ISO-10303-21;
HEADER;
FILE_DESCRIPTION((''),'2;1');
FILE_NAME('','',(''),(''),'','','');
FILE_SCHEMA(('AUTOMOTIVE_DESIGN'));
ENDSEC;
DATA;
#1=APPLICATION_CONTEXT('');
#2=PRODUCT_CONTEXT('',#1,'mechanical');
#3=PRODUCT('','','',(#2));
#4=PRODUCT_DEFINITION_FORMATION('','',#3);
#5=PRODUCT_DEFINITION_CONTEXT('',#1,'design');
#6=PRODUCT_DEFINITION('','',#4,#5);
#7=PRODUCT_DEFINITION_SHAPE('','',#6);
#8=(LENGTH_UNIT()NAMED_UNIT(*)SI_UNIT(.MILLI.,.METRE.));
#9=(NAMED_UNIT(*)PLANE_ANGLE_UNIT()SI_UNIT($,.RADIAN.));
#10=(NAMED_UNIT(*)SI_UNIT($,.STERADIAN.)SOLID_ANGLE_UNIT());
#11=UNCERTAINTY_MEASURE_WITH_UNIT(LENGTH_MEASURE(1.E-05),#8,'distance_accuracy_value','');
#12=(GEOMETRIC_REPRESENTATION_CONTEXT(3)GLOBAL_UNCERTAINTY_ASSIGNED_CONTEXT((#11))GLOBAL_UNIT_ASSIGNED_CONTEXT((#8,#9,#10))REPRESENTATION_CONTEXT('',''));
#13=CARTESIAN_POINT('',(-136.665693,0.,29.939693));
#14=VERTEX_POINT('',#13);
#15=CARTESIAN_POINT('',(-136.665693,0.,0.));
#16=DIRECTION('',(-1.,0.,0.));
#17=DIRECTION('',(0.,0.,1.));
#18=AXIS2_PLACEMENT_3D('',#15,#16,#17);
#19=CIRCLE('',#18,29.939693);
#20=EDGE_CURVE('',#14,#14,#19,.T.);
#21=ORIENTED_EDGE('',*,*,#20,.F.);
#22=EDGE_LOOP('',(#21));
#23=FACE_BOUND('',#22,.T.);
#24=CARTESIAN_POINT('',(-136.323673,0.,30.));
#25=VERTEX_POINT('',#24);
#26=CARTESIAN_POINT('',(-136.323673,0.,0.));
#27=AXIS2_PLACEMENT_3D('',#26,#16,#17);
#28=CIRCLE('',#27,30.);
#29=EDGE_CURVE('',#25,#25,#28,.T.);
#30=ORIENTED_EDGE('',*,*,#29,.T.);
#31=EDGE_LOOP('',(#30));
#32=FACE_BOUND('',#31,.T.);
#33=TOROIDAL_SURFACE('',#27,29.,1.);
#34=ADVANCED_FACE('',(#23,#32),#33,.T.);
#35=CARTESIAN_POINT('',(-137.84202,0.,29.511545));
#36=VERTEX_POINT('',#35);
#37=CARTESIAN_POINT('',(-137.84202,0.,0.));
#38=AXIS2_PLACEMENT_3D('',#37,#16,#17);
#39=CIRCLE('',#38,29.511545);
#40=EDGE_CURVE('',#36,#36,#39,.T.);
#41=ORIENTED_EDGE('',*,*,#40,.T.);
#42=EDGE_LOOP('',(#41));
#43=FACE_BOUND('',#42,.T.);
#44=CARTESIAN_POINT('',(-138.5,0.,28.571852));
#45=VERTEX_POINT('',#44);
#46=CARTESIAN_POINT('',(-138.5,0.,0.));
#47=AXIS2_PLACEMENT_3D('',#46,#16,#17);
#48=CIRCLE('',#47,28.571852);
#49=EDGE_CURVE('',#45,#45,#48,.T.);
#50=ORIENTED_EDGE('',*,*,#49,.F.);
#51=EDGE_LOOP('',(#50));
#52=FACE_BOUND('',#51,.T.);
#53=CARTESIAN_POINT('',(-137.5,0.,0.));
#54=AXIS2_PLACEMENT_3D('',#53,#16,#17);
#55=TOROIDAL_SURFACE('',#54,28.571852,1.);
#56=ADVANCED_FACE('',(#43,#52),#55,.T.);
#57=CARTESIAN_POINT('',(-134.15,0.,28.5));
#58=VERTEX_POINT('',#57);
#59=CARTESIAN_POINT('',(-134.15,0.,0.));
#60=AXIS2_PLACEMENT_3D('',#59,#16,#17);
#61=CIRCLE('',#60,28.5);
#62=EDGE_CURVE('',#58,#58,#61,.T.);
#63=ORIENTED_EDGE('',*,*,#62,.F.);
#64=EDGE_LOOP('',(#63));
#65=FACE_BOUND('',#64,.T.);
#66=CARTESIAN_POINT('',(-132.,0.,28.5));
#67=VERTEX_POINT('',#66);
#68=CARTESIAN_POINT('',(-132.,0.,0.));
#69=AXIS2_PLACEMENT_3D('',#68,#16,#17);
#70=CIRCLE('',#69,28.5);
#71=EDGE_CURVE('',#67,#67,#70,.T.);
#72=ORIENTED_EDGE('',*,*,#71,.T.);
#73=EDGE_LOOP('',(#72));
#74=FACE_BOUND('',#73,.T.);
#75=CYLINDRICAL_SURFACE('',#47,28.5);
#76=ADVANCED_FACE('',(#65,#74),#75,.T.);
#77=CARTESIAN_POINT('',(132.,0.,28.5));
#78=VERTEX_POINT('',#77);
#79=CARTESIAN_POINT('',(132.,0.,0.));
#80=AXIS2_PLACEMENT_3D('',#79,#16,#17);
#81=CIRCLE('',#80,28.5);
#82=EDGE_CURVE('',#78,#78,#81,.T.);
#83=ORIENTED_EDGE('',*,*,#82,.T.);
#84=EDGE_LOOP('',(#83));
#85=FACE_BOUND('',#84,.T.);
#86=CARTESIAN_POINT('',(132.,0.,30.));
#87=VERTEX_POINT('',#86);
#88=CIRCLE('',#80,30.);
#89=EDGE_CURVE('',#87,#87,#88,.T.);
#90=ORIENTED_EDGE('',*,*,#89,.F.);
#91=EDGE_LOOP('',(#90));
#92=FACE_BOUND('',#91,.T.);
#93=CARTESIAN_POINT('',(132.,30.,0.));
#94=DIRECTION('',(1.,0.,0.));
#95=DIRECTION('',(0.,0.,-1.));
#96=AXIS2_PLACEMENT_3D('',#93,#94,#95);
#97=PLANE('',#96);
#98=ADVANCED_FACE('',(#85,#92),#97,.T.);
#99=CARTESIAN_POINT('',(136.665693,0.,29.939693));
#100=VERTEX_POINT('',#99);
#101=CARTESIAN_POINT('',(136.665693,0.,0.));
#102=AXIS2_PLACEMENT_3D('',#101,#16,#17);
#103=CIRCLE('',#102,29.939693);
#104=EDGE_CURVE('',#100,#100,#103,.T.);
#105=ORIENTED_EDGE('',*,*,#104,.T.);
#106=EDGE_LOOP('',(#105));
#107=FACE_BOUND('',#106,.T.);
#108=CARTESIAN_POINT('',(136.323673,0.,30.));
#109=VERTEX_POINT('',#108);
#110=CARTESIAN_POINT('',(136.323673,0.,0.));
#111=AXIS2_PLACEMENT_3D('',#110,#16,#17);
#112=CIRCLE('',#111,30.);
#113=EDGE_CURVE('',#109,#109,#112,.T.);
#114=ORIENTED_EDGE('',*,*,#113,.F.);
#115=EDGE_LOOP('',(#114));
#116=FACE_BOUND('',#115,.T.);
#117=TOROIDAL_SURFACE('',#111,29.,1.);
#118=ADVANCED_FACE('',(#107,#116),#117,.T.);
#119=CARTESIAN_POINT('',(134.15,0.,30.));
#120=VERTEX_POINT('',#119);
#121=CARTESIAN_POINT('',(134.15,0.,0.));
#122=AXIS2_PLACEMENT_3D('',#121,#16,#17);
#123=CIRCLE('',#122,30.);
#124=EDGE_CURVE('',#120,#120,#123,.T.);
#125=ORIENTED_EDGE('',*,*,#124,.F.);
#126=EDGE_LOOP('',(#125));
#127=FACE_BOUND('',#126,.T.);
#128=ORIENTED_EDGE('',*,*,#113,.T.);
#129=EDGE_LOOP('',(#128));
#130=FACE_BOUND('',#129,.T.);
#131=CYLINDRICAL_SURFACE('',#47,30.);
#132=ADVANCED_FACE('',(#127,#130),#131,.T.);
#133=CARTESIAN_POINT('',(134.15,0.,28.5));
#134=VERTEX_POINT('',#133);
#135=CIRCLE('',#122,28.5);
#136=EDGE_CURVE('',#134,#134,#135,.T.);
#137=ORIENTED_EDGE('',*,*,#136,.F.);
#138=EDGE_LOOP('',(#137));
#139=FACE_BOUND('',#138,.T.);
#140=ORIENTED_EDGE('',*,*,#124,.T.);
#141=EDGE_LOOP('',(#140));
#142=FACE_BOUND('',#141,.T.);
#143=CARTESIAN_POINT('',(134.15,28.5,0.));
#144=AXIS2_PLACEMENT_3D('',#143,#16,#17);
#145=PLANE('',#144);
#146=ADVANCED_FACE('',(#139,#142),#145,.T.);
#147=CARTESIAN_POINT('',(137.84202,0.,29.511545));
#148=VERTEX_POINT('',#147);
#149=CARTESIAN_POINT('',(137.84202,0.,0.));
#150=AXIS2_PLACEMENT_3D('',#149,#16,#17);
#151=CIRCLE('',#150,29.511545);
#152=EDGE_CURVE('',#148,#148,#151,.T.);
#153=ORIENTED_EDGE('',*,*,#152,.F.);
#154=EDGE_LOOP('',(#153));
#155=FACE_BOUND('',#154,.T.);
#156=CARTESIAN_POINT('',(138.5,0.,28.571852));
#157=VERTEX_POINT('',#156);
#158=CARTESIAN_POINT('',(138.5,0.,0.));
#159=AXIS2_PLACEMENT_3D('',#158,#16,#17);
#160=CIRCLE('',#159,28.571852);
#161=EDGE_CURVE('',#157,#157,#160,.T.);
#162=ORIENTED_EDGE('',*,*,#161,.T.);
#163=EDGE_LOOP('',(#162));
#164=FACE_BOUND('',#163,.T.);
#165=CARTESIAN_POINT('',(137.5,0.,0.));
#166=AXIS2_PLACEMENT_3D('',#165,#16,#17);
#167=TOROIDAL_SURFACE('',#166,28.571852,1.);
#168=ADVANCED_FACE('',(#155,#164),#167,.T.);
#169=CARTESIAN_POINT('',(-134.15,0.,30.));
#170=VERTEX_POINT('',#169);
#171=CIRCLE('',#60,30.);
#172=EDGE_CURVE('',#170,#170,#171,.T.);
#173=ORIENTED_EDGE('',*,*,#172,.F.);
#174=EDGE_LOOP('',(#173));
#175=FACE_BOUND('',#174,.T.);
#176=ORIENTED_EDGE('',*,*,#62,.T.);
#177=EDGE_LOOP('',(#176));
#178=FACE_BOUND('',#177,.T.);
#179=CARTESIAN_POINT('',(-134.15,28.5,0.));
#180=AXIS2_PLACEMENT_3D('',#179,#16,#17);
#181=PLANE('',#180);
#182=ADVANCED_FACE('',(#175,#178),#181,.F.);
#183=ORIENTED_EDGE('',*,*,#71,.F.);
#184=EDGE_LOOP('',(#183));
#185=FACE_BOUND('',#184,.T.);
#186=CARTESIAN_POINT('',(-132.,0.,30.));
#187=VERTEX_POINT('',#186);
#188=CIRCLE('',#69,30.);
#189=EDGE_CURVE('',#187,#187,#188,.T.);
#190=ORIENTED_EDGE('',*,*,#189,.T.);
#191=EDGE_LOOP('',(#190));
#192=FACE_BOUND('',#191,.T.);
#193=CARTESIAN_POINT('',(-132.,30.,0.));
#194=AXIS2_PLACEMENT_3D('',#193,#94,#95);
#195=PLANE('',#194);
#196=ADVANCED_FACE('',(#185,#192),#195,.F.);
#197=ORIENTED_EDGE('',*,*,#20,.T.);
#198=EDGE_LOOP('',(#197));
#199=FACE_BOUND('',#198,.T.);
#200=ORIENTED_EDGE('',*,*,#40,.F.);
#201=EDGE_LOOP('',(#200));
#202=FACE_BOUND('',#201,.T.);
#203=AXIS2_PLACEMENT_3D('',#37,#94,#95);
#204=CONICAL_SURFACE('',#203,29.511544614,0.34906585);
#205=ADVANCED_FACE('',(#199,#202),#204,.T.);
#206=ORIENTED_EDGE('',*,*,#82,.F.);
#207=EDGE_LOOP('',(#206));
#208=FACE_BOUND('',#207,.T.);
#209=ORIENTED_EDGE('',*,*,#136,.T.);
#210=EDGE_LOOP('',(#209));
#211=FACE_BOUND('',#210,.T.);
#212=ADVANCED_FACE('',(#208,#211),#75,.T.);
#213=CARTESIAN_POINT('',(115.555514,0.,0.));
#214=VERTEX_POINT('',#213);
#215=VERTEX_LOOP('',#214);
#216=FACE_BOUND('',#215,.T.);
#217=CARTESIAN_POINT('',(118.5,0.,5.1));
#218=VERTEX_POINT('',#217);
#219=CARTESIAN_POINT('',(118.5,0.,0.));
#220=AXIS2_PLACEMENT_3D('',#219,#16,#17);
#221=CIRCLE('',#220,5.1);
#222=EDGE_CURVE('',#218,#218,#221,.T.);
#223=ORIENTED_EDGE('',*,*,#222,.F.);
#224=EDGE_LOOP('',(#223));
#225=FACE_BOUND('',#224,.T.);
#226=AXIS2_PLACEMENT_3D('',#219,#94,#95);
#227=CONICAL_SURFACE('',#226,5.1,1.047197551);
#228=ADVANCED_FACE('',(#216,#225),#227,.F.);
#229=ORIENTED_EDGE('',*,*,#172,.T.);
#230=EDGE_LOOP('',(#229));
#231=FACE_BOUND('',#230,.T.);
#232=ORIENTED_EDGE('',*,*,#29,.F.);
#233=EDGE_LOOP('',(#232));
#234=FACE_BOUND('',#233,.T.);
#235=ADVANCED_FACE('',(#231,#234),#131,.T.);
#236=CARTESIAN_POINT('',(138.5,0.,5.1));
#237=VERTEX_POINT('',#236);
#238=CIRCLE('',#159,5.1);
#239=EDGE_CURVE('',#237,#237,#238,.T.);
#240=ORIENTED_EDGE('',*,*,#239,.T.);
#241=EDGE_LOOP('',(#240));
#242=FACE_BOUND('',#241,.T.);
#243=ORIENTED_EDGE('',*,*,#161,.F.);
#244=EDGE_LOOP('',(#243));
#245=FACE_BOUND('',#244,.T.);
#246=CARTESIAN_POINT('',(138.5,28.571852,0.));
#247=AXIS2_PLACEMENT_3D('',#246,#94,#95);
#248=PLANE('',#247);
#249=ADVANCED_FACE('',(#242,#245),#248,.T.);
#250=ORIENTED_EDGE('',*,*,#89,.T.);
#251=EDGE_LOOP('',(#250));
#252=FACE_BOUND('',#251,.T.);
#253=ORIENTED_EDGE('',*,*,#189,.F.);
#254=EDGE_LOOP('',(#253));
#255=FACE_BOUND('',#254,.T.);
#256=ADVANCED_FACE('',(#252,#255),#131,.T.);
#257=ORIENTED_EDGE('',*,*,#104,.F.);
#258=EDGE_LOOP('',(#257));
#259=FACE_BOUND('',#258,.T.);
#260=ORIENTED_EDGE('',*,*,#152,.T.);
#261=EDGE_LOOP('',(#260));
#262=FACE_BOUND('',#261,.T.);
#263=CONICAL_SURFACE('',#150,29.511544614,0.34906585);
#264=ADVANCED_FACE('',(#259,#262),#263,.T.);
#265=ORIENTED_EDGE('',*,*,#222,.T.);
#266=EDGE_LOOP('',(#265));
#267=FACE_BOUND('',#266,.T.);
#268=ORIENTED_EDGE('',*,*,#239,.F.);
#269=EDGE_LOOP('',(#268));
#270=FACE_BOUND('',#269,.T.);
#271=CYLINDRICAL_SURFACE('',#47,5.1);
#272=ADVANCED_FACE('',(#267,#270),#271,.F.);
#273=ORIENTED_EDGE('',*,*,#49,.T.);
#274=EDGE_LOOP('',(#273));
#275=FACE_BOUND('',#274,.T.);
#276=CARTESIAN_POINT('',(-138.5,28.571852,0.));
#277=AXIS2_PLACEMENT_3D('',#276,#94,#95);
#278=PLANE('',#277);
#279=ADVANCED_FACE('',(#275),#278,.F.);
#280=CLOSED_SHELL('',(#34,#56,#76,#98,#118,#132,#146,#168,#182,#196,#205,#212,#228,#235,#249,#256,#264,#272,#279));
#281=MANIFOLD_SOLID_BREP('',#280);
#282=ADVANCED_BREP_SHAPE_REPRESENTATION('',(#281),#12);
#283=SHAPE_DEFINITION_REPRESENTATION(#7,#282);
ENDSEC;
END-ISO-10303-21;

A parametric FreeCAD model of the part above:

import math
import FreeCAD as App
import Part
import Sketcher
from FreeCAD import Vector
Q = App.Units.Quantity

doc = App.newDocument("Part")
body = doc.addObject("PartDesign::Body", "Body")

# Sketch on XY plane
sketch1 = doc.addObject("Sketcher::SketchObject", "Sketch")
body.addObject(sketch1)
sketch1.AttachmentSupport = (doc.XY_Plane, [""])
sketch1.MapMode = "FlatFace"
sketch1.addGeometry([
    Part.LineSegment(Vector(132, 30, 0), Vector(-132, 30, 0)),  # 0
    Part.LineSegment(Vector(-132, 30, 0), Vector(-132, 28.5, 0)),  # 1
    Part.LineSegment(Vector(-132, 28.5, 0), Vector(-134.15, 28.5, 0)),  # 2
    Part.LineSegment(Vector(-134.15, 28.5, 0), Vector(-134.15, 30, 0)),  # 3
    Part.LineSegment(Vector(-134.15, 30, 0), Vector(-136.32, 30, 0)),  # 4
    Part.ArcOfCircle(Part.Circle(Vector(-136.32, 29, 0), Vector(0, 0, 1), 1), math.radians(90), math.radians(110)),  # 5
    Part.LineSegment(Vector(-136.67, 29.94, 0), Vector(-137.84, 29.51, 0)),  # 6
    Part.ArcOfCircle(Part.Circle(Vector(-137.5, 28.57, 0), Vector(0, 0, 1), 1), math.radians(110), math.radians(180)),  # 7
    Part.LineSegment(Vector(-138.5, 28.57, 0), Vector(-138.5, 0, 0)),  # 8
    Part.LineSegment(Vector(-138.5, 0, 0), Vector(115.56, 0, 0)),  # 9
    Part.LineSegment(Vector(115.56, 0, 0), Vector(118.5, 5.1, 0)),  # 10
    Part.LineSegment(Vector(118.5, 5.1, 0), Vector(138.5, 5.1, 0)),  # 11
    Part.LineSegment(Vector(138.5, 5.1, 0), Vector(138.5, 28.57, 0)),  # 12
    Part.ArcOfCircle(Part.Circle(Vector(137.5, 28.57, 0), Vector(0, 0, 1), 1), math.radians(0), math.radians(70)),  # 13
    Part.LineSegment(Vector(137.84, 29.51, 0), Vector(136.67, 29.94, 0)),  # 14
    Part.ArcOfCircle(Part.Circle(Vector(136.32, 29, 0), Vector(0, 0, 1), 1), math.radians(70), math.radians(90)),  # 15
    Part.LineSegment(Vector(136.32, 30, 0), Vector(134.15, 30, 0)),  # 16
    Part.LineSegment(Vector(134.15, 30, 0), Vector(134.15, 28.5, 0)),  # 17
    Part.LineSegment(Vector(134.15, 28.5, 0), Vector(132, 28.5, 0)),  # 18
    Part.LineSegment(Vector(132, 28.5, 0), Vector(132, 30, 0)),  # 19
], False)
sketch1.addConstraint([
    Sketcher.Constraint("Coincident", 0, 2, 1, 1),
    Sketcher.Constraint("Coincident", 1, 2, 2, 1),
    Sketcher.Constraint("Coincident", 2, 2, 3, 1),
    Sketcher.Constraint("Coincident", 3, 2, 4, 1),
    Sketcher.Constraint("Tangent", 4, 2, 5, 1),
    Sketcher.Constraint("Tangent", 5, 2, 6, 1),
    Sketcher.Constraint("Tangent", 6, 2, 7, 1),
    Sketcher.Constraint("Tangent", 7, 2, 8, 1),
    Sketcher.Constraint("Coincident", 8, 2, 9, 1),
    Sketcher.Constraint("Coincident", 9, 2, 10, 1),
    Sketcher.Constraint("Coincident", 10, 2, 11, 1),
    Sketcher.Constraint("Coincident", 11, 2, 12, 1),
    Sketcher.Constraint("Tangent", 12, 2, 13, 1),
    Sketcher.Constraint("Tangent", 13, 2, 14, 1),
    Sketcher.Constraint("Tangent", 14, 2, 15, 1),
    Sketcher.Constraint("Tangent", 15, 2, 16, 1),
    Sketcher.Constraint("Coincident", 16, 2, 17, 1),
    Sketcher.Constraint("Coincident", 17, 2, 18, 1),
    Sketcher.Constraint("Coincident", 18, 2, 19, 1),
    Sketcher.Constraint("Coincident", 19, 2, 0, 1),
    Sketcher.Constraint("Horizontal", 0),
    Sketcher.Constraint("Vertical", 1),
    Sketcher.Constraint("Horizontal", 2),
    Sketcher.Constraint("Vertical", 3),
    Sketcher.Constraint("Horizontal", 4),
    Sketcher.Constraint("Vertical", 8),
    Sketcher.Constraint("Horizontal", 9),
    Sketcher.Constraint("Horizontal", 11),
    Sketcher.Constraint("Vertical", 12),
    Sketcher.Constraint("Horizontal", 16),
    Sketcher.Constraint("Vertical", 17),
    Sketcher.Constraint("Horizontal", 18),
    Sketcher.Constraint("Vertical", 19),
    Sketcher.Constraint("Equal", 5, 7),
    Sketcher.Constraint("Equal", 7, 13),
    Sketcher.Constraint("Equal", 13, 15),
    Sketcher.Constraint("Symmetric", 7, 3, 13, 3, -2),
    Sketcher.Constraint("Symmetric", 5, 3, 15, 3, -2),
    Sketcher.Constraint("Symmetric", 2, 2, 17, 2, -2),
    Sketcher.Constraint("PointOnObject", 8, 2, -1),
    Sketcher.Constraint("Horizontal", 0, 2, 3, 2),
    Sketcher.Constraint("Equal", 2, 18),
    Sketcher.Constraint("Radius", 5, Q("1 mm")),
    Sketcher.Constraint("DistanceX", 0, 2, 0, 1, Q("264 mm")),
    Sketcher.Constraint("DistanceX", 11, 1, 11, 2, Q("20 mm")),
    Sketcher.Constraint("Angle", 6, Q("-160 deg")),
    Sketcher.Constraint("Angle", 10, Q("60 deg")),
    Sketcher.Constraint("DistanceY", 1, 2, 1, 1, Q("1.5 mm")),
    Sketcher.Constraint("DistanceY", -1, 1, 5, 3, Q("29 mm")),
    Sketcher.Constraint("DistanceX", 7, 3, 13, 3, Q("275 mm")),
    Sketcher.Constraint("DistanceX", 2, 2, 2, 1, Q("2.15 mm")),
    Sketcher.Constraint("DistanceY", -1, 1, 10, 2, Q("5.1 mm")),
    Sketcher.Constraint("DistanceY", 8, 2, 8, 1, Q("28.571852 mm")),
])
revolution = doc.addObject("PartDesign::Revolution", "Revolution")
body.addObject(revolution)
revolution.Profile = sketch1
revolution.ReferenceAxis = (sketch1, ["H_Axis"])
revolution.Angle = 360

doc.recompute()
